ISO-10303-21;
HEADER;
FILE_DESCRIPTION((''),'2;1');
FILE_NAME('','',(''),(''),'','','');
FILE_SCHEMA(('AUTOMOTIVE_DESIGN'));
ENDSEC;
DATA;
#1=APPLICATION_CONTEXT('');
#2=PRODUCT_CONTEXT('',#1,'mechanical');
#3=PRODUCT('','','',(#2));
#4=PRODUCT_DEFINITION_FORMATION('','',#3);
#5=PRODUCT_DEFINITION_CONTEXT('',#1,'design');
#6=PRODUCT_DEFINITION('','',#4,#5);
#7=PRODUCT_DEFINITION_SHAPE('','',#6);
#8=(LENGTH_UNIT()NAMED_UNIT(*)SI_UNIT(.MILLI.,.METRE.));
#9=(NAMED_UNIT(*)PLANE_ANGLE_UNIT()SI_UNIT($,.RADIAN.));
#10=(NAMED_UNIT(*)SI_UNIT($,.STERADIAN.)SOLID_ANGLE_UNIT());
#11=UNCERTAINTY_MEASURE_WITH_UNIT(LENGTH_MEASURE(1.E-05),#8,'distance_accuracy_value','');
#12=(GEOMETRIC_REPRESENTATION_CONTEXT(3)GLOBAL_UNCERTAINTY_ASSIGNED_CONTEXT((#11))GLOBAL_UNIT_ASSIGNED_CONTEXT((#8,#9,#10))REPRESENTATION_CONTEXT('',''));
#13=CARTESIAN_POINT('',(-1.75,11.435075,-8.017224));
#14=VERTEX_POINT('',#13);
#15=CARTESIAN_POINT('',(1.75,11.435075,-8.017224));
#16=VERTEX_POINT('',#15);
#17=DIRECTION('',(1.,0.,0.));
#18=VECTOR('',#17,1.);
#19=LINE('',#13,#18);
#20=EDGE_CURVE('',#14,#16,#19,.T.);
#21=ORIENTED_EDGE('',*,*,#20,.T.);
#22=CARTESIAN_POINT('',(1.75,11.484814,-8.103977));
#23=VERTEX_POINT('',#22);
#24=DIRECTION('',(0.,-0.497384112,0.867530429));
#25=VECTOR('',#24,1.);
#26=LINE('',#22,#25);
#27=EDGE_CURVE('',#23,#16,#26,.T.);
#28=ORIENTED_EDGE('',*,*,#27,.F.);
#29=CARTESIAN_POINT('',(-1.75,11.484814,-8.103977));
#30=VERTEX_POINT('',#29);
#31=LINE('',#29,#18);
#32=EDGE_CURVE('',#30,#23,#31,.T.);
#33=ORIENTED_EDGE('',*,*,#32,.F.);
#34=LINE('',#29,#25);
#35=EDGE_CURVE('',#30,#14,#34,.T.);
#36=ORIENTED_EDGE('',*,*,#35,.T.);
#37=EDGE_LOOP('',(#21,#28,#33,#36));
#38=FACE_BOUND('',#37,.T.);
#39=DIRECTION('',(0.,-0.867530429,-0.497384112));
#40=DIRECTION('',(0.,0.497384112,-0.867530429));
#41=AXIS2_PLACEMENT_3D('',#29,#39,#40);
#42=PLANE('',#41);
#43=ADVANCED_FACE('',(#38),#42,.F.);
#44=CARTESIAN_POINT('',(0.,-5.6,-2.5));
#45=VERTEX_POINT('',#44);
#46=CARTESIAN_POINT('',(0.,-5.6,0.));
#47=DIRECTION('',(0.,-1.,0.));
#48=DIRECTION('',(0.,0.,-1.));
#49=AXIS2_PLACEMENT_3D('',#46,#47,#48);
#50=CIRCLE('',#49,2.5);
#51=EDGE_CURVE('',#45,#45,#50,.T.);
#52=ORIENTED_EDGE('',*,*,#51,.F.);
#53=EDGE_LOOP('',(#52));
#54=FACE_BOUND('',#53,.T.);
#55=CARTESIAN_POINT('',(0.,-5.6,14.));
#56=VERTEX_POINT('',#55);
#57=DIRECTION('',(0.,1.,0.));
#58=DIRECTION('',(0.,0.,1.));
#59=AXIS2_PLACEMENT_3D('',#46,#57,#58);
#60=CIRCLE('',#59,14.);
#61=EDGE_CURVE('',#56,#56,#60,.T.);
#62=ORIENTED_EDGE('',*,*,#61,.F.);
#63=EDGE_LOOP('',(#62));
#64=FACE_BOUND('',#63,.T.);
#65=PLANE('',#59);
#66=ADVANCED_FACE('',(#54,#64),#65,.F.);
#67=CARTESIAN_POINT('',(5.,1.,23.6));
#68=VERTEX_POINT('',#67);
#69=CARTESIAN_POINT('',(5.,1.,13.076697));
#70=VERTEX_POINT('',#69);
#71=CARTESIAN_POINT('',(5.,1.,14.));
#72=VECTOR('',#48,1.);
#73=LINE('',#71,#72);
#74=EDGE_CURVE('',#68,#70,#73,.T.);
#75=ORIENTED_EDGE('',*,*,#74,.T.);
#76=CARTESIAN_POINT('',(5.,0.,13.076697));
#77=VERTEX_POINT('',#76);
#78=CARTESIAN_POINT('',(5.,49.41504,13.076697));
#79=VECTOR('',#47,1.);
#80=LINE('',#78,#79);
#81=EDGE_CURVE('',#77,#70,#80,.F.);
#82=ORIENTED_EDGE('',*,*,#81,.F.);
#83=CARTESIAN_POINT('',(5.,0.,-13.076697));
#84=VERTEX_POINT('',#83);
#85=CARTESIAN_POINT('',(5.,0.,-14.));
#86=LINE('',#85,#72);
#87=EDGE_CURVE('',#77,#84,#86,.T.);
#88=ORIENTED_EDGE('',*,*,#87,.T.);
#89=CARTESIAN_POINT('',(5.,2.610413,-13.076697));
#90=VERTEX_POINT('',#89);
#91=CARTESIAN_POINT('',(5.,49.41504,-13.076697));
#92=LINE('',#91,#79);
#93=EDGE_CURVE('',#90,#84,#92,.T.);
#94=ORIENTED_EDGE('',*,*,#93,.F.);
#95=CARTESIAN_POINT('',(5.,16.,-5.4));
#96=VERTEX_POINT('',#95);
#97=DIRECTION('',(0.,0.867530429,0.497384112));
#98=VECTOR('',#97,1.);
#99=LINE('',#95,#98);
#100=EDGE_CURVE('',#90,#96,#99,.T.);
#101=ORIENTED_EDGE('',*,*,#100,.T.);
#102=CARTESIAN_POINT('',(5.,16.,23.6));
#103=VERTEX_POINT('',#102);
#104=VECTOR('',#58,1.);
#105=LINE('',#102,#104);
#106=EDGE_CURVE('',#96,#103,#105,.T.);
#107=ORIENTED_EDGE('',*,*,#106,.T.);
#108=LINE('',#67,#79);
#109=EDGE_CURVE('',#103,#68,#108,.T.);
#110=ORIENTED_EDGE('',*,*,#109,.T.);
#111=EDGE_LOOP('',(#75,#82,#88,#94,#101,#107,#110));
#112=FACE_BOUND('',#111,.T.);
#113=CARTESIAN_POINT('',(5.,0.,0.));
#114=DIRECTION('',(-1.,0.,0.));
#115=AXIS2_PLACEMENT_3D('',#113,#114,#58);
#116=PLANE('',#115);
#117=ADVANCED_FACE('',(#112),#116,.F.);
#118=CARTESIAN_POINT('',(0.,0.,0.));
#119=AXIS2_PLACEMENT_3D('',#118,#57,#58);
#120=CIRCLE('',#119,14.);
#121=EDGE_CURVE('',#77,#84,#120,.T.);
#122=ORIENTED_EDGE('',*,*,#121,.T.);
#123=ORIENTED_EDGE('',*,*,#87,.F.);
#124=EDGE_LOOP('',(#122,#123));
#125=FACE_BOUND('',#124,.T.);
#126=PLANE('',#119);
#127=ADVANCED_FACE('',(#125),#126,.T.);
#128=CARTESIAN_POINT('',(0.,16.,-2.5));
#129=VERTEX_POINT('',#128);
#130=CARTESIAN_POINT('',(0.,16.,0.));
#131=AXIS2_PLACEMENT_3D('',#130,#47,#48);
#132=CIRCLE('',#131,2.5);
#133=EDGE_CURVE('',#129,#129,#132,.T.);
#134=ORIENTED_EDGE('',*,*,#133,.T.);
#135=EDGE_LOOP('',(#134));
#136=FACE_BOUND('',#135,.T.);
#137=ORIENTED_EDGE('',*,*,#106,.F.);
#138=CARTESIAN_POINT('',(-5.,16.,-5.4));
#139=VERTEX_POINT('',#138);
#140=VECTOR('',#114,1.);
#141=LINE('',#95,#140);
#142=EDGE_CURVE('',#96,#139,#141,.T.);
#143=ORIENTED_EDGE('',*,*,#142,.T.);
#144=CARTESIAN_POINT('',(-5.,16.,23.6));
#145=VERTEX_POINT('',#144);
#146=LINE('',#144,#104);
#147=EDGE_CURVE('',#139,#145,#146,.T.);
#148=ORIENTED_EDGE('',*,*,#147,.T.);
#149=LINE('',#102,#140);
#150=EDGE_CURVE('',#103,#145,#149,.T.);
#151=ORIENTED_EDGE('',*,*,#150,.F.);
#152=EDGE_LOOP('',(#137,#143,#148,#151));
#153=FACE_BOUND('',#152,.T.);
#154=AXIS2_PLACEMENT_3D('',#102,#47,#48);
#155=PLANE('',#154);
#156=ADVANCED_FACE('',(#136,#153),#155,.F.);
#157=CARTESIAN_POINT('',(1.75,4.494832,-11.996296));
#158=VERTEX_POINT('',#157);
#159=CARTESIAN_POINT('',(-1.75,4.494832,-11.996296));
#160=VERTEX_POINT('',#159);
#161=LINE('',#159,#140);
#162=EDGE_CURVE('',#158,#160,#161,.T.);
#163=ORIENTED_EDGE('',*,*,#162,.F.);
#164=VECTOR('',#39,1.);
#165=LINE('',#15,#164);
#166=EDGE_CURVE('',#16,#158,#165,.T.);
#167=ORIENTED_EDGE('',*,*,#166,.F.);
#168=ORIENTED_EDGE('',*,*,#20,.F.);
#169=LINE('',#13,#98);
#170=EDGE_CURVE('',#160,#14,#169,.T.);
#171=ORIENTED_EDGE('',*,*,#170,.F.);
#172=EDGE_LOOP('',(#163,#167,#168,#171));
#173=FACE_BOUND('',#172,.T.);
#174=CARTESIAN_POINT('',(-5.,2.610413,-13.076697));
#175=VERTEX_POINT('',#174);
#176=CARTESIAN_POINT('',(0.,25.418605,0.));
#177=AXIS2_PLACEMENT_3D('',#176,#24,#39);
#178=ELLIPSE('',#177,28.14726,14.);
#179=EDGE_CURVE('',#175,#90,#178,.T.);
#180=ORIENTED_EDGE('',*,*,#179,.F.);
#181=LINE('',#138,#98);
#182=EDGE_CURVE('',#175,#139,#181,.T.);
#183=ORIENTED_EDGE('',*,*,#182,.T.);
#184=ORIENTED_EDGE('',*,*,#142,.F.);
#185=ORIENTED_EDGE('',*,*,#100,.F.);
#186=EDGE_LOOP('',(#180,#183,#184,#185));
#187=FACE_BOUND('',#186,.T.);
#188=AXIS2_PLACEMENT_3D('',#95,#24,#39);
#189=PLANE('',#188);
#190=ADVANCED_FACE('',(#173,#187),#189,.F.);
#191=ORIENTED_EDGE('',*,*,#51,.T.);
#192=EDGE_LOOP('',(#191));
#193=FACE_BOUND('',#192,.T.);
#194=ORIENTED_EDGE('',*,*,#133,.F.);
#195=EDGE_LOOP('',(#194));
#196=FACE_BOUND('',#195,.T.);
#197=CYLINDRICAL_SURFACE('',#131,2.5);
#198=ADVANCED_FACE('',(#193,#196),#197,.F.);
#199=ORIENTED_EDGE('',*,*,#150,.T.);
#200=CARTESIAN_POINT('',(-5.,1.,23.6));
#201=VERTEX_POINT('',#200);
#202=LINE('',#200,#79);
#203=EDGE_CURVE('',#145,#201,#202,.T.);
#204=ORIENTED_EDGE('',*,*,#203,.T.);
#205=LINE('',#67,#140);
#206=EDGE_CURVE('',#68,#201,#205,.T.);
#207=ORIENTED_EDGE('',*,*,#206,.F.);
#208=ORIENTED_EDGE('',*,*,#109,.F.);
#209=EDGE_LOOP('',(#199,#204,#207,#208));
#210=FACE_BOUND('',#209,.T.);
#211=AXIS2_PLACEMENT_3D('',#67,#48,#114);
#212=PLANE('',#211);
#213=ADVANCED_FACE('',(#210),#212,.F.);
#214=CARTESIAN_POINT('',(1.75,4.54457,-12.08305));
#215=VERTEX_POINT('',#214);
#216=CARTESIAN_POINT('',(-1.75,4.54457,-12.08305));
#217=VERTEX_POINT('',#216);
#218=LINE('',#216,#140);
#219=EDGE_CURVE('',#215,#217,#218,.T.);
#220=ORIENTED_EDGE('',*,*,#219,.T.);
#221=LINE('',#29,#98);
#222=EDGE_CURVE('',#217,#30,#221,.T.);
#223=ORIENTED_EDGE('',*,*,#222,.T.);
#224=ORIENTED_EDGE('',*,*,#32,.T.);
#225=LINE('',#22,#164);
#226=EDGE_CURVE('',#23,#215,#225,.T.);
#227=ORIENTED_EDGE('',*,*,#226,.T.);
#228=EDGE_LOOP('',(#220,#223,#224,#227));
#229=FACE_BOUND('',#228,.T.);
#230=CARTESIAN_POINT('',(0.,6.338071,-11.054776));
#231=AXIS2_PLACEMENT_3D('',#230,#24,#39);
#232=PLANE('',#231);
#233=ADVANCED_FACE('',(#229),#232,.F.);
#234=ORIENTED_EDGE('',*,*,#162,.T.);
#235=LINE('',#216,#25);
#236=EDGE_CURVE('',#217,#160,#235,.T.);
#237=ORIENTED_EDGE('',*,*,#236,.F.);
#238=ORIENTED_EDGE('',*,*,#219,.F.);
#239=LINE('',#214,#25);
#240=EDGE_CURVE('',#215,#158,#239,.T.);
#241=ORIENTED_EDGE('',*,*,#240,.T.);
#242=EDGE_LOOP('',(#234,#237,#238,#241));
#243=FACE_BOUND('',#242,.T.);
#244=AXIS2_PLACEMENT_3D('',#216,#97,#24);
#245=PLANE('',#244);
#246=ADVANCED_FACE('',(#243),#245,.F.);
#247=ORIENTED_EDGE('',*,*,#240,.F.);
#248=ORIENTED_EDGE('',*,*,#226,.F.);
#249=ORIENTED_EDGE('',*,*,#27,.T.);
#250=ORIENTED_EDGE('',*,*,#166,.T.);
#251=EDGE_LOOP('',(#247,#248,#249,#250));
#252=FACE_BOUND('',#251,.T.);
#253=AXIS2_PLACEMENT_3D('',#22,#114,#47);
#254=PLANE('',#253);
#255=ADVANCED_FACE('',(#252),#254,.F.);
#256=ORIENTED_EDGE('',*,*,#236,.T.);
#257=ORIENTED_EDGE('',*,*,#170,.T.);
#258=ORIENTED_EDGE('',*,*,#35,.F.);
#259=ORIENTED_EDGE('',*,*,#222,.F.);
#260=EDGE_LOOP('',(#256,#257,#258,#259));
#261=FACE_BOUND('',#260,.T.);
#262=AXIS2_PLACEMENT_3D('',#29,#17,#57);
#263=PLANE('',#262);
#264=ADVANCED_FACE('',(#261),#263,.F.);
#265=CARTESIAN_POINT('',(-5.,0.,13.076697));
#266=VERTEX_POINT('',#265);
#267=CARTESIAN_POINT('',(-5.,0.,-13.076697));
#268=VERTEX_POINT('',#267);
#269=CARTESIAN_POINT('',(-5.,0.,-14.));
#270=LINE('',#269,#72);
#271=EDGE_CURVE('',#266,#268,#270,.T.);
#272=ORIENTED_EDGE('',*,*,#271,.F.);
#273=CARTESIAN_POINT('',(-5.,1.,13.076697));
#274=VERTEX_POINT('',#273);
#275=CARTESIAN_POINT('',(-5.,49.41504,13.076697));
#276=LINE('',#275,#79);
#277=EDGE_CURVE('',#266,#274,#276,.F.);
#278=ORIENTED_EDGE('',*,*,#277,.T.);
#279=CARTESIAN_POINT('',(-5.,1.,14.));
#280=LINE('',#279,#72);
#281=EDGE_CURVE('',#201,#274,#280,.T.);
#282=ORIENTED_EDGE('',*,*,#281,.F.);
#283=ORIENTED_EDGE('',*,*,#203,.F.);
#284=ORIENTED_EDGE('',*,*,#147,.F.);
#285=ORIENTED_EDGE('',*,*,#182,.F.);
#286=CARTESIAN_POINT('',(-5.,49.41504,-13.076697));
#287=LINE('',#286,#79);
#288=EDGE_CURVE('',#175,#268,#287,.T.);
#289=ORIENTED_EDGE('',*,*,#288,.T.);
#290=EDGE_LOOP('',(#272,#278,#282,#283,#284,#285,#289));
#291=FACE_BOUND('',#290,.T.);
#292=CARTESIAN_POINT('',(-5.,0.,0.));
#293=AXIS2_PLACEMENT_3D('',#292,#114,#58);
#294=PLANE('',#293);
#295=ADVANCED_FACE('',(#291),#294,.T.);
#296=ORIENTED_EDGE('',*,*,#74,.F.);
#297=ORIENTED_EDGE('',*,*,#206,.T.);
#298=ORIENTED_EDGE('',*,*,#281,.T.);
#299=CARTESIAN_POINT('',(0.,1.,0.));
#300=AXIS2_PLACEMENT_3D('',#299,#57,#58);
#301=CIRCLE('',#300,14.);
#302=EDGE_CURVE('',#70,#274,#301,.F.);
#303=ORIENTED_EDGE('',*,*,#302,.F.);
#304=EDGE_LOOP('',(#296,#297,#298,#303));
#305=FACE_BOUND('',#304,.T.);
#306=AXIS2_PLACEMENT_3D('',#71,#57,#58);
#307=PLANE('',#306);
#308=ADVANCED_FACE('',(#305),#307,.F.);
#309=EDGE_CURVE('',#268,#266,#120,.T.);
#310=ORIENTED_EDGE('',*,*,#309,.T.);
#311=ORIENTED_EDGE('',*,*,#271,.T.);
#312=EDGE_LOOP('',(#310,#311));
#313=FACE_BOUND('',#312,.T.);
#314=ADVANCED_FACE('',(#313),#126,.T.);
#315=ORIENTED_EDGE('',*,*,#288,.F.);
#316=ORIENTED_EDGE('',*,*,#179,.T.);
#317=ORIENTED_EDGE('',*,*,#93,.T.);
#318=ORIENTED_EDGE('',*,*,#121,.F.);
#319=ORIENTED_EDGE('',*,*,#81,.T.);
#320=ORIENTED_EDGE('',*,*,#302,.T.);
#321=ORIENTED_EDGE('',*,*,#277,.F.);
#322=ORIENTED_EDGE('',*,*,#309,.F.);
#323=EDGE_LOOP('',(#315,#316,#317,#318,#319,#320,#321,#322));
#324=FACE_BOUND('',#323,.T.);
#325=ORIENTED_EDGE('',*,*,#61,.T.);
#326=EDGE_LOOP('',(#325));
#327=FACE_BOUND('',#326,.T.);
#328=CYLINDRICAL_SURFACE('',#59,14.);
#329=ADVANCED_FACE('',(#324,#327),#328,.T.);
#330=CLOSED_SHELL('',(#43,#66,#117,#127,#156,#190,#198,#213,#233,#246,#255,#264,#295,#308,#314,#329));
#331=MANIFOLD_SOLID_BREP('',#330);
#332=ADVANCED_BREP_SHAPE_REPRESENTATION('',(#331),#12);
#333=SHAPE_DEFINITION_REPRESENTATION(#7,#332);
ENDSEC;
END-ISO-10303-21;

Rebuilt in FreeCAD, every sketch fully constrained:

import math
import FreeCAD as App
import Part
import Sketcher

doc = App.newDocument("Part")
body = doc.addObject("PartDesign::Body", "Body")

sketch1 = doc.addObject("Sketcher::SketchObject", "Sketch")
body.addObject(sketch1)
sketch1.AttachmentSupport = (doc.XZ_Plane, [""])
sketch1.MapMode = "FlatFace"
sketch1.addGeometry(Part.Circle(App.Vector(0, 0, 0), App.Vector(0, 0, 1), 14), False)
sketch1.addConstraint([
    Sketcher.Constraint("Coincident", 0, 3, -1, 1),
    Sketcher.Constraint("Diameter", 0, 28.0),
])
pad1 = doc.addObject("PartDesign::Pad", "Pad")
body.addObject(pad1)
pad1.Profile = sketch1
pad1.Length = 5.6

sketch2 = doc.addObject("Sketcher::SketchObject", "Sketch001")
body.addObject(sketch2)
sketch2.AttachmentSupport = (doc.YZ_Plane, [""])
sketch2.MapMode = "FlatFace"
sketch2.addGeometry([
    Part.LineSegment(App.Vector(1, 14, 0), App.Vector(0, 14, 0)),
    Part.LineSegment(App.Vector(0, 14, 0), App.Vector(0, -14, 0)),
    Part.LineSegment(App.Vector(0, -14, 0), App.Vector(1, -14, 0)),
    Part.LineSegment(App.Vector(1, -14, 0), App.Vector(16, -5.4, 0)),
    Part.LineSegment(App.Vector(16, -5.4, 0), App.Vector(16, 23.6, 0)),
    Part.LineSegment(App.Vector(16, 23.6, 0), App.Vector(1, 23.6, 0)),
    Part.LineSegment(App.Vector(1, 23.6, 0), App.Vector(1, 14, 0)),
], False)
sketch2.addConstraint([
    Sketcher.Constraint("Coincident", 0, 2, 1, 1),
    Sketcher.Constraint("Coincident", 1, 2, 2, 1),
    Sketcher.Constraint("Coincident", 2, 2, 3, 1),
    Sketcher.Constraint("Coincident", 3, 2, 4, 1),
    Sketcher.Constraint("Coincident", 4, 2, 5, 1),
    Sketcher.Constraint("Coincident", 5, 2, 6, 1),
    Sketcher.Constraint("Coincident", 6, 2, 0, 1),
    Sketcher.Constraint("Horizontal", 0),
    Sketcher.Constraint("Vertical", 1),
    Sketcher.Constraint("Horizontal", 2),
    Sketcher.Constraint("Vertical", 4),
    Sketcher.Constraint("Horizontal", 5),
    Sketcher.Constraint("Vertical", 6),
    Sketcher.Constraint("Symmetric", 0, 2, 1, 2, -1, 1),
    Sketcher.Constraint("Vertical", 2, 2, 5, 2),
    Sketcher.Constraint("DistanceX", 0, 2, 0, 1, 1.0),
    Sketcher.Constraint("DistanceX", 5, 2, 5, 1, 15.0),
    Sketcher.Constraint("DistanceY", 1, 2, 1, 1, 28.0),
    Sketcher.Constraint("DistanceY", 4, 1, 4, 2, 29.0),
    Sketcher.Constraint("DistanceY", 6, 2, 6, 1, 9.6),
])
pad2 = doc.addObject("PartDesign::Pad", "Pad001")
body.addObject(pad2)
pad2.Profile = sketch2
pad2.Length = 10
pad2.Midplane = True

sketch3 = doc.addObject("Sketcher::SketchObject", "Sketch002")
body.addObject(sketch3)
sketch3.AttachmentSupport = (doc.XZ_Plane, [""])
sketch3.MapMode = "FlatFace"
sketch3.AttachmentOffset = App.Placement(App.Vector(0, 0, 5.6), App.Rotation())
sketch3.addGeometry([
    Part.LineSegment(App.Vector(-20, 30, 0), App.Vector(-20, -20, 0)),
    Part.LineSegment(App.Vector(-20, -20, 0), App.Vector(20, -20, 0)),
    Part.LineSegment(App.Vector(20, -20, 0), App.Vector(20, 30, 0)),
    Part.LineSegment(App.Vector(20, 30, 0), App.Vector(-20, 30, 0)),
    Part.Circle(App.Vector(0, 0, 0), App.Vector(0, 0, 1), 14),
], False)
sketch3.addConstraint([
    Sketcher.Constraint("Coincident", 0, 2, 1, 1),
    Sketcher.Constraint("Coincident", 1, 2, 2, 1),
    Sketcher.Constraint("Coincident", 2, 2, 3, 1),
    Sketcher.Constraint("Coincident", 3, 2, 0, 1),
    Sketcher.Constraint("Vertical", 0),
    Sketcher.Constraint("Horizontal", 1),
    Sketcher.Constraint("Vertical", 2),
    Sketcher.Constraint("Horizontal", 3),
    Sketcher.Constraint("Coincident", 4, 3, -1, 1),
    Sketcher.Constraint("Diameter", 4, 28.0),
    Sketcher.Constraint("DistanceX", 1, 1, 1, 2, 40.324),
    Sketcher.Constraint("DistanceY", 0, 2, 0, 1, 49.924),
    Sketcher.Constraint("DistanceX", 0, 2, -1, 1, 20.162),
    Sketcher.Constraint("DistanceY", 0, 2, -1, 1, 20.162),
])
pocket1 = doc.addObject("PartDesign::Pocket", "Pocket")
body.addObject(pocket1)
pocket1.Profile = sketch3
pocket1.Length = 6.6

sketch4 = doc.addObject("Sketcher::SketchObject", "Sketch003")
body.addObject(sketch4)
sketch4.AttachmentSupport = (doc.XZ_Plane, [""])
sketch4.MapMode = "FlatFace"
sketch4.AttachmentOffset = App.Placement(App.Vector(0, 0, 5.6), App.Rotation())
sketch4.addGeometry([
    Part.ArcOfCircle(Part.Circle(App.Vector(0, 0, 0), App.Vector(0, 0, 1), 14), math.radians(-90), math.radians(-69)),
    Part.LineSegment(App.Vector(0, -14, 0), App.Vector(5, -14, 0)),
    Part.LineSegment(App.Vector(5, -14, 0), App.Vector(5, -13.1, 0)),
    Part.LineSegment(App.Vector(-5, -13.1, 0), App.Vector(-5, -14, 0)),
    Part.LineSegment(App.Vector(-5, -14, 0), App.Vector(0, -14, 0)),
    Part.ArcOfCircle(Part.Circle(App.Vector(0, 0, 0), App.Vector(0, 0, 1), 14), math.radians(-111), math.radians(-90)),
], False)
sketch4.addConstraint([
    Sketcher.Constraint("Tangent", 0, 1, 1, 1),
    Sketcher.Constraint("Coincident", 1, 2, 2, 1),
    Sketcher.Constraint("Coincident", 2, 2, 0, 2),
    Sketcher.Constraint("Coincident", 3, 2, 4, 1),
    Sketcher.Constraint("Tangent", 4, 2, 5, 2),
    Sketcher.Constraint("Coincident", 5, 1, 3, 1),
    Sketcher.Constraint("Horizontal", 1),
    Sketcher.Constraint("Vertical", 2),
    Sketcher.Constraint("Vertical", 3),
    Sketcher.Constraint("Horizontal", 4),
    Sketcher.Constraint("Coincident", 5, 3, 0, 3),
    Sketcher.Constraint("Equal", 0, 5),
    Sketcher.Constraint("Symmetric", 2, 2, 5, 1, -2),
    Sketcher.Constraint("DistanceX", 1, 1, 1, 2, 5.0),
    Sketcher.Constraint("DistanceY", 0, 1, -1, 1, 14.0),
    Sketcher.Constraint("Radius", 0, 14.000023),
])
pocket2 = doc.addObject("PartDesign::Pocket", "Pocket001")
body.addObject(pocket2)
pocket2.Profile = sketch4
pocket2.Length = 10

sketch5 = doc.addObject("Sketcher::SketchObject", "Sketch004")
body.addObject(sketch5)
sketch5.AttachmentSupport = (doc.XZ_Plane, [""])
sketch5.MapMode = "FlatFace"
sketch5.AttachmentOffset = App.Placement(App.Vector(0, 0, 5.6), App.Rotation())
sketch5.addGeometry(Part.Circle(App.Vector(0, 0, 0), App.Vector(0, 0, 1), 2.5), False)
sketch5.addConstraint([
    Sketcher.Constraint("Coincident", 0, 3, -1, 1),
    Sketcher.Constraint("Diameter", 0, 5.0),
])
pocket3 = doc.addObject("PartDesign::Pocket", "Pocket002")
body.addObject(pocket3)
pocket3.Profile = sketch5
pocket3.Type = "ThroughAll"

sketch6 = doc.addObject("Sketcher::SketchObject", "Sketch005")
body.addObject(sketch6)
sketch6.Placement = App.Placement(App.Vector(0, 6.288333, -10.968022), App.Rotation(App.Vector(-1, 0, 0), App.Vector(0, 0.867530371, 0.497384213), App.Vector(0, 0.497384213, -0.867530371), "ZXY"))
sketch6.addGeometry([
    Part.LineSegment(App.Vector(-1.8, 5.9, 0), App.Vector(-1.8, -2.1, 0)),
    Part.LineSegment(App.Vector(-1.8, -2.1, 0), App.Vector(1.8, -2.1, 0)),
    Part.LineSegment(App.Vector(1.8, -2.1, 0), App.Vector(1.8, 5.9, 0)),
    Part.LineSegment(App.Vector(1.8, 5.9, 0), App.Vector(-1.8, 5.9, 0)),
], False)
sketch6.addConstraint([
    Sketcher.Constraint("Coincident", 0, 2, 1, 1),
    Sketcher.Constraint("Coincident", 1, 2, 2, 1),
    Sketcher.Constraint("Coincident", 2, 2, 3, 1),
    Sketcher.Constraint("Coincident", 3, 2, 0, 1),
    Sketcher.Constraint("Vertical", 0),
    Sketcher.Constraint("Horizontal", 1),
    Sketcher.Constraint("Vertical", 2),
    Sketcher.Constraint("Horizontal", 3),
    Sketcher.Constraint("DistanceY", 0, 2, 0, 1, 8.0),
    Sketcher.Constraint("DistanceX", 1, 1, 1, 2, 3.5),
    Sketcher.Constraint("DistanceX", 0, 2, -1, 1, 1.75),
    Sketcher.Constraint("DistanceY", 0, 2, -1, 1, 2.067364),
])
pad3 = doc.addObject("PartDesign::Pad", "Pad002")
body.addObject(pad3)
pad3.Profile = sketch6
pad3.Length = 0.1

doc.recompute()
